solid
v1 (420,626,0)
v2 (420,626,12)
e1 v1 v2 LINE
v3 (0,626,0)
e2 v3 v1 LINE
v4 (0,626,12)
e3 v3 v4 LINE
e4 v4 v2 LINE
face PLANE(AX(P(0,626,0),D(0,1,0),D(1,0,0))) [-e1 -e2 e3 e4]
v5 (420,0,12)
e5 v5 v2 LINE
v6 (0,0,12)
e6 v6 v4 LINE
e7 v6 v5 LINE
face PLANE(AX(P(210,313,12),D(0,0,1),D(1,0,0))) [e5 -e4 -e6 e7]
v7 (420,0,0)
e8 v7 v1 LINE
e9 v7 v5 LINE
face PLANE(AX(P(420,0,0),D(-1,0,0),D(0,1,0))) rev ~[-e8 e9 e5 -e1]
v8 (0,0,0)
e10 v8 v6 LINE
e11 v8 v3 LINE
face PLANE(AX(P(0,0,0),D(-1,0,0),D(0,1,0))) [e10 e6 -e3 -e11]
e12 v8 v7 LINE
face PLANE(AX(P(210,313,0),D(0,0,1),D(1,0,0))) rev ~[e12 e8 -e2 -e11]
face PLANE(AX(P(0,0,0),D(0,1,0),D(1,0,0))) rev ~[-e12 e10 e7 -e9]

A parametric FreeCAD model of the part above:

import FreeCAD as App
import Part
import Sketcher

V = App.Vector
Q = App.Units.Quantity

doc = App.newDocument("Part")
params = doc.addObject("Spreadsheet::Sheet", "Params")
for row, (alias, value) in enumerate([
    ("sketch1_width", "420 mm"),
    ("sketch1_height", "626 mm"),
    ("pad1_length", "12 mm"),
], start=1):
    params.set(f"A{row}", alias)
    params.set(f"B{row}", "=" + value)
    params.setAlias(f"B{row}", alias)

body = doc.addObject("PartDesign::Body", "Body")

# Sketch on XY plane
sketch1 = body.newObject("Sketcher::SketchObject", "Sketch")
sketch1.AttachmentSupport = (doc.getObject("XY_Plane"), [""])
sketch1.MapMode = "FlatFace"
sketch1.addGeometry([
    Part.LineSegment(V(0, 626, 0), V(0, 0, 0)),
    Part.LineSegment(V(0, 0, 0), V(420, 0, 0)),
    Part.LineSegment(V(420, 0, 0), V(420, 626, 0)),
    Part.LineSegment(V(420, 626, 0), V(0, 626, 0)),
], False)
sketch1.addConstraint([
    Sketcher.Constraint("Coincident", 0, 2, 1, 1),
    Sketcher.Constraint("Coincident", 1, 2, 2, 1),
    Sketcher.Constraint("Coincident", 2, 2, 3, 1),
    Sketcher.Constraint("Coincident", 3, 2, 0, 1),
    Sketcher.Constraint("Vertical", 0),
    Sketcher.Constraint("Horizontal", 1),
    Sketcher.Constraint("Vertical", 2),
    Sketcher.Constraint("Horizontal", 3),
    Sketcher.Constraint("Coincident", 0, 2, -1, 1),
    Sketcher.Constraint("DistanceX", 1, 1, 1, 2, Q("420 mm")),
    Sketcher.Constraint("DistanceY", 0, 2, 0, 1, Q("626 mm")),
])
sketch1.setExpression("Constraints[9]", "Params.sketch1_width")
sketch1.setExpression("Constraints[10]", "Params.sketch1_height")
pad1 = body.newObject("PartDesign::Pad", "Pad")
pad1.Profile = sketch1
pad1.setExpression("Length", "Params.pad1_length")

doc.recompute()
